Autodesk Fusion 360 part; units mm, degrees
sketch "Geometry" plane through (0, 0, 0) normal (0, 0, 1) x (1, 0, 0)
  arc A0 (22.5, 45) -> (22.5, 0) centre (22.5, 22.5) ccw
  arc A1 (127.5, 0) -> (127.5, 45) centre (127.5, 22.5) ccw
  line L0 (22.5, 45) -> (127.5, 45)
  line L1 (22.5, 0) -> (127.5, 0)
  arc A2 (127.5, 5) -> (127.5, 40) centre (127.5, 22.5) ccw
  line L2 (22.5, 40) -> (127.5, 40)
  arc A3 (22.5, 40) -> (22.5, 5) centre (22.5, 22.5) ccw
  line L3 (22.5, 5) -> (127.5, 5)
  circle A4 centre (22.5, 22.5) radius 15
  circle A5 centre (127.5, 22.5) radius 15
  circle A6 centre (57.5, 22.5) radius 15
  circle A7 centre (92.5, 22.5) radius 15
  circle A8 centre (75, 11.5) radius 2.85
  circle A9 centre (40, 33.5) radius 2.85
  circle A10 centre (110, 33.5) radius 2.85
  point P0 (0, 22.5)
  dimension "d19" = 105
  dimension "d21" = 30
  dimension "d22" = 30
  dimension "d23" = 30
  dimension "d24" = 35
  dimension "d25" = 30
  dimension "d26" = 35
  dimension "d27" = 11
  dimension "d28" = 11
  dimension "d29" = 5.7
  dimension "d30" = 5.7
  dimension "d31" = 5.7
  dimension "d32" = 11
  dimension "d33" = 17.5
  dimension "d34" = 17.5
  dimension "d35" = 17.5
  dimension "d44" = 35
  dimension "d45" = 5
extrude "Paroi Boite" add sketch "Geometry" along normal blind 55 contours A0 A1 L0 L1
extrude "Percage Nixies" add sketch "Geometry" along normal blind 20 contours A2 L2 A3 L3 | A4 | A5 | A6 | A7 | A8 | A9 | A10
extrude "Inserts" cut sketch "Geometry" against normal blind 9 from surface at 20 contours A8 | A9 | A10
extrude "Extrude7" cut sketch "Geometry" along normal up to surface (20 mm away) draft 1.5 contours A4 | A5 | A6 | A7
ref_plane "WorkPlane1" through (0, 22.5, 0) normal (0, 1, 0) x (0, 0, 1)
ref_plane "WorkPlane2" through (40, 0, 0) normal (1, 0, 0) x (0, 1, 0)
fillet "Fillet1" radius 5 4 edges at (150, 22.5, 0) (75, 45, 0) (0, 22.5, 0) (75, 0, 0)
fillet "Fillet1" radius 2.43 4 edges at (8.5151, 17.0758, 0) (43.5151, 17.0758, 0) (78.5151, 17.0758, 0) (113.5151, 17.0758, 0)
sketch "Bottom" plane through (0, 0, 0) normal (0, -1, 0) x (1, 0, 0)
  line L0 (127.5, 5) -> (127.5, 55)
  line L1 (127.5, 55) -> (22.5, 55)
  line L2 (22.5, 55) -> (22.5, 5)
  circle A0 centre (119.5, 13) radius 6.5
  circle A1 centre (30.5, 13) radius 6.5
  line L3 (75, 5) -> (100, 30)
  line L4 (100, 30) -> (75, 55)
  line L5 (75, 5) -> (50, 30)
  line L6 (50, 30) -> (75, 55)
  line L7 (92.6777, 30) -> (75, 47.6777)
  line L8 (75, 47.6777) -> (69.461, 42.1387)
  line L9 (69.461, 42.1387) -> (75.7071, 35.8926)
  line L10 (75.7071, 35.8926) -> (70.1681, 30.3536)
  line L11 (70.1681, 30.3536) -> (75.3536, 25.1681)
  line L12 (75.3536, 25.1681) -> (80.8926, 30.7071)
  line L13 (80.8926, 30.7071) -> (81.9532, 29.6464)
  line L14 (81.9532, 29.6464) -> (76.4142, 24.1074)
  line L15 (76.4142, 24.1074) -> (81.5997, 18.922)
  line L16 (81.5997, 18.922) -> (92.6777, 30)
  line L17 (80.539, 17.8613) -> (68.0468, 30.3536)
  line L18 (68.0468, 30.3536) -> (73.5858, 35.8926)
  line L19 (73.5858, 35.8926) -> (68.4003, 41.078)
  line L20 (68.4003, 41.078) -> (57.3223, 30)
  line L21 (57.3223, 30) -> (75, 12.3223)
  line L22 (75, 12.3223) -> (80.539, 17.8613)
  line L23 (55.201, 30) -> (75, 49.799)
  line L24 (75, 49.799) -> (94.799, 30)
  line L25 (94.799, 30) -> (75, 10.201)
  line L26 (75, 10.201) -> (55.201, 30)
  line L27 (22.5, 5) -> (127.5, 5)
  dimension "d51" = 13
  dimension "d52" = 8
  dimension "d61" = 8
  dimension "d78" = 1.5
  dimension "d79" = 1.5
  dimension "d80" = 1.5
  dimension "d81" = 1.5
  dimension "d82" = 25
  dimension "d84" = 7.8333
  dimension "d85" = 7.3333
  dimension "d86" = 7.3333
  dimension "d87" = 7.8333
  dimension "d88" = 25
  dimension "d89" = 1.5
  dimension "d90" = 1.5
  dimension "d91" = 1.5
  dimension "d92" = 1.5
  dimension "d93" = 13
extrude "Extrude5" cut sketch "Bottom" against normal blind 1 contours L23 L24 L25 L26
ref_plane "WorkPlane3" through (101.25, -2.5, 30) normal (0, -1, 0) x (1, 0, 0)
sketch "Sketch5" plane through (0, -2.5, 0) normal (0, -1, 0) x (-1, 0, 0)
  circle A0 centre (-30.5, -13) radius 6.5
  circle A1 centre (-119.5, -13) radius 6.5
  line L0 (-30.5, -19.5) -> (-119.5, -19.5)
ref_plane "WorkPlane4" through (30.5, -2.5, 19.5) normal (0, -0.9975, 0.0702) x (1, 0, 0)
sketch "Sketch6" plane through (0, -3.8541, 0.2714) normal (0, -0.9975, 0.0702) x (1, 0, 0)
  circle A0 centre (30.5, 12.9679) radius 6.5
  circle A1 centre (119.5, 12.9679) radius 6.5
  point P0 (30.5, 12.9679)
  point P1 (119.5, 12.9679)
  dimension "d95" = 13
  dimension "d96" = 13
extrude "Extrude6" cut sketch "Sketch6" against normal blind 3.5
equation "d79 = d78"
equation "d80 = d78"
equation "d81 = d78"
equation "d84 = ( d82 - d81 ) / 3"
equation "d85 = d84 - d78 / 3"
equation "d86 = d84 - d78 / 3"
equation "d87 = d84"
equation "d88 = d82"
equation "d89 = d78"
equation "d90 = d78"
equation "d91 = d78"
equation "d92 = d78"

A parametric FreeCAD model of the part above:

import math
import FreeCAD as App
import Part
import Sketcher
Q = App.Units.Quantity


def edges_at(feature, points):
    """Names of the edges that pass closest to the given points."""
    edges = feature.Shape.Edges
    near = lambda p: min(range(len(edges)), key=lambda i: edges[i].distToShape(Part.Vertex(*p))[0])
    return sorted({f"Edge{near(p) + 1}" for p in points})


def add_polygon(sketch, points):
    """Adds a closed chain of lines whose ends are joined by coincident constraints."""
    first, n = sketch.GeometryCount, len(points)
    for a, b in zip(points, points[1:] + points[:1]):
        sketch.addGeometry(Part.LineSegment(App.Vector(*a, 0), App.Vector(*b, 0)), False)
    for i in range(n):
        sketch.addConstraint(Sketcher.Constraint("Coincident", first + i, 2, first + (i + 1) % n, 1))

doc = App.newDocument("Part")
params = doc.addObject("Spreadsheet::Sheet", "Params")
for row, (alias, value) in enumerate([
    ("sketch1_radius", "17.5 mm"),
    ("sketch1_width", "105 mm"),
    ("pad1_length", "55 mm"),
    ("sketch2_radius", "17.5 mm"),
    ("sketch2_width", "105 mm"),
    ("pad2_length", "20 mm"),
    ("sketch3_diameter", "5.7 mm"),
    ("pocket1_length", "9 mm"),
    ("sketch4_diameter", "30 mm"),
    ("pocket2_length", "20 mm"),
    ("pocket2_taper", "1.5 deg"),
    ("fillet_radius", "5 mm"),
    ("fillet2_radius", "2.43 mm"),
    ("sketch5_length", "25 mm"),
    ("sketch5_length2", "1.5 mm"),
    ("sketch5_length3", "28 mm"),
    ("pocket3_length", "1 mm"),
    ("sketch6_diameter", "13 mm"),
    ("pocket4_length", "3.5 mm"),
], start=1):
    params.set(f"A{row}", alias)
    params.set(f"B{row}", "=" + value)
    params.setAlias(f"B{row}", alias)

body = doc.addObject("PartDesign::Body", "Body")

# Sketch on XY plane
sketch1 = doc.addObject("Sketcher::SketchObject", "Sketch")
body.addObject(sketch1)
sketch1.AttachmentSupport = (doc.XY_Plane, [""])
sketch1.MapMode = "FlatFace"
sketch1.addGeometry([
    Part.LineSegment(App.Vector(128, 45, 0), App.Vector(22, 45, 0)),  # 0
    Part.ArcOfCircle(Part.Circle(App.Vector(22, 22, 0), App.Vector(0, 0, 1), 22), math.radians(90), math.radians(270)),  # 1
    Part.LineSegment(App.Vector(22, 0, 0), App.Vector(128, 0, 0)),  # 2
    Part.ArcOfCircle(Part.Circle(App.Vector(128, 22, 0), App.Vector(0, 0, 1), 22), math.radians(-90), math.radians(90)),  # 3
    Part.ArcOfCircle(Part.Circle(App.Vector(128, 22, 0), App.Vector(0, 0, 1), 18), math.radians(-90), math.radians(90)),  # 4
    Part.LineSegment(App.Vector(128, 5, 0), App.Vector(22, 5, 0)),  # 5
    Part.ArcOfCircle(Part.Circle(App.Vector(22, 22, 0), App.Vector(0, 0, 1), 18), math.radians(90), math.radians(270)),  # 6
    Part.LineSegment(App.Vector(22, 40, 0), App.Vector(128, 40, 0)),  # 7
], False)
sketch1.addConstraint([
    Sketcher.Constraint("Tangent", 0, 2, 1, 1),
    Sketcher.Constraint("Tangent", 1, 2, 2, 1),
    Sketcher.Constraint("Tangent", 2, 2, 3, 1),
    Sketcher.Constraint("Tangent", 3, 2, 0, 1),
    Sketcher.Constraint("Tangent", 4, 1, 5, 1),
    Sketcher.Constraint("Tangent", 5, 2, 6, 2),
    Sketcher.Constraint("Tangent", 6, 1, 7, 1),
    Sketcher.Constraint("Tangent", 7, 2, 4, 2),
    Sketcher.Constraint("Horizontal", 0),
    Sketcher.Constraint("Horizontal", 2),
    Sketcher.Constraint("Horizontal", 5),
    Sketcher.Constraint("Horizontal", 7),
    Sketcher.Constraint("Coincident", 4, 3, 3, 3),
    Sketcher.Constraint("PointOnObject", 1, 2, -1),
    Sketcher.Constraint("Vertical", 6, 3, 0, 2),
    Sketcher.Constraint("Radius", 4, Q("17.5 mm")),
    Sketcher.Constraint("DistanceX", 0, 2, 0, 1, Q("105 mm")),
    Sketcher.Constraint("DistanceY", -1, 1, 4, 1, Q("5 mm")),
    Sketcher.Constraint("DistanceX", -1, 1, 1, 3, Q("22.5 mm")),
])
sketch1.setExpression("Constraints[15]", "Params.sketch1_radius")
sketch1.setExpression("Constraints[16]", "Params.sketch1_width")
pad1 = doc.addObject("PartDesign::Pad", "Pad")
body.addObject(pad1)
pad1.Profile = sketch1
pad1.setExpression("Length", "Params.pad1_length")

# Sketch on XY plane
sketch2 = doc.addObject("Sketcher::SketchObject", "Sketch001")
body.addObject(sketch2)
sketch2.AttachmentSupport = (doc.XY_Plane, [""])
sketch2.MapMode = "FlatFace"
sketch2.addGeometry([
    Part.LineSegment(App.Vector(22, 5, 0), App.Vector(128, 5, 0)),
    Part.ArcOfCircle(Part.Circle(App.Vector(128, 22, 0), App.Vector(0, 0, 1), 18), math.radians(-90), math.radians(90)),
    Part.LineSegment(App.Vector(128, 40, 0), App.Vector(22, 40, 0)),
    Part.ArcOfCircle(Part.Circle(App.Vector(22, 22, 0), App.Vector(0, 0, 1), 18), math.radians(90), math.radians(270)),
], False)
sketch2.addConstraint([
    Sketcher.Constraint("Tangent", 0, 2, 1, 1),
    Sketcher.Constraint("Tangent", 1, 2, 2, 1),
    Sketcher.Constraint("Tangent", 2, 2, 3, 1),
    Sketcher.Constraint("Tangent", 3, 2, 0, 1),
    Sketcher.Constraint("Horizontal", 0),
    Sketcher.Constraint("Horizontal", 2),
    Sketcher.Constraint("Radius", 1, Q("17.5 mm")),
    Sketcher.Constraint("DistanceX", 0, 1, 0, 2, Q("105 mm")),
    Sketcher.Constraint("DistanceY", -1, 1, 0, 2, Q("5 mm")),
    Sketcher.Constraint("DistanceX", -1, 1, 1, 3, Q("127.5 mm")),
])
sketch2.setExpression("Constraints[6]", "Params.sketch2_radius")
sketch2.setExpression("Constraints[7]", "Params.sketch2_width")
pad2 = doc.addObject("PartDesign::Pad", "Pad001")
body.addObject(pad2)
pad2.Profile = sketch2
pad2.setExpression("Length", "Params.pad2_length")

# Sketch on XY plane
sketch3 = doc.addObject("Sketcher::SketchObject", "Sketch002")
body.addObject(sketch3)
sketch3.AttachmentSupport = (doc.XY_Plane, [""])
sketch3.MapMode = "FlatFace"
sketch3.AttachmentOffset = App.Placement(App.Vector(0, 0, 20), App.Rotation())
sketch3.addGeometry([
    Part.Circle(App.Vector(75, 11.5, 0), App.Vector(0, 0, 1), 2.9),
    Part.Circle(App.Vector(40, 33.5, 0), App.Vector(0, 0, 1), 2.9),
    Part.Circle(App.Vector(110, 33.5, 0), App.Vector(0, 0, 1), 2.9),
], False)
sketch3.addConstraint([
    Sketcher.Constraint("Equal", 0, 1),
    Sketcher.Constraint("Equal", 1, 2),
    Sketcher.Constraint("Horizontal", 1, 3, 2, 3),
    Sketcher.Constraint("Diameter", 0, Q("5.7 mm")),
    Sketcher.Constraint("DistanceX", 1, 3, 0, 3, Q("35 mm")),
    Sketcher.Constraint("DistanceX", 0, 3, 2, 3, Q("35 mm")),
    Sketcher.Constraint("DistanceX", -1, 1, 0, 3, Q("75 mm")),
    Sketcher.Constraint("DistanceY", 0, 3, 1, 3, Q("22 mm")),
    Sketcher.Constraint("DistanceY", -1, 1, 0, 3, Q("11.5 mm")),
])
sketch3.setExpression("Constraints[3]", "Params.sketch3_diameter")
pocket1 = doc.addObject("PartDesign::Pocket", "Pocket")
body.addObject(pocket1)
pocket1.Profile = sketch3
pocket1.setExpression("Length", "Params.pocket1_length")

# Sketch on XY plane
sketch4 = doc.addObject("Sketcher::SketchObject", "Sketch003")
body.addObject(sketch4)
sketch4.AttachmentSupport = (doc.XY_Plane, [""])
sketch4.MapMode = "FlatFace"
sketch4.addGeometry([
    Part.Circle(App.Vector(22, 22, 0), App.Vector(0, 0, 1), 15),
    Part.Circle(App.Vector(128, 22, 0), App.Vector(0, 0, 1), 15),
    Part.Circle(App.Vector(58, 22, 0), App.Vector(0, 0, 1), 15),
    Part.Circle(App.Vector(92, 22, 0), App.Vector(0, 0, 1), 15),
], False)
sketch4.addConstraint([
    Sketcher.Constraint("Equal", 0, 1),
    Sketcher.Constraint("Equal", 1, 2),
    Sketcher.Constraint("Equal", 2, 3),
    Sketcher.Constraint("Horizontal", 0, 3, 1, 3),
    Sketcher.Constraint("Horizontal", 1, 3, 2, 3),
    Sketcher.Constraint("Horizontal", 2, 3, 3, 3),
    Sketcher.Constraint("Diameter", 0, Q("30 mm")),
    Sketcher.Constraint("DistanceX", 0, 3, 1, 3, Q("105 mm")),
    Sketcher.Constraint("DistanceX", 0, 3, 2, 3, Q("35 mm")),
    Sketcher.Constraint("DistanceX", 3, 3, 1, 3, Q("35 mm")),
    Sketcher.Constraint("DistanceX", -1, 1, 0, 3, Q("22.5 mm")),
    Sketcher.Constraint("DistanceY", -1, 1, 0, 3, Q("22.5 mm")),
])
sketch4.setExpression("Constraints[6]", "Params.sketch4_diameter")
pocket2 = doc.addObject("PartDesign::Pocket", "Pocket001")
body.addObject(pocket2)
pocket2.Profile = sketch4
pocket2.setExpression("Length", "Params.pocket2_length")
pocket2.Reversed = True
pocket2.setExpression("TaperAngle", "Params.pocket2_taper")
doc.recompute()

fillet = doc.addObject("PartDesign::Fillet", "Fillet")
body.addObject(fillet)
fillet.Base = (pocket2, edges_at(pocket2, [
    (150, 22.5, 0),
    (75, 45, 0),
    (0, 22.5, 0),
    (75, 0, 0),
]))
fillet.setExpression("Radius", "Params.fillet_radius")
doc.recompute()

fillet2 = doc.addObject("PartDesign::Fillet", "Fillet001")
body.addObject(fillet2)
fillet2.Base = (fillet, edges_at(fillet, [
    (8.515, 17.076, 0),
    (43.515, 17.076, 0),
    (78.515, 17.076, 0),
    (113.515, 17.076, 0),
]))
fillet2.setExpression("Radius", "Params.fillet2_radius")

# Sketch on XZ plane
sketch5 = doc.addObject("Sketcher::SketchObject", "Sketch004")
body.addObject(sketch5)
sketch5.AttachmentSupport = (doc.XZ_Plane, [""])
sketch5.MapMode = "FlatFace"
add_polygon(sketch5, [(75, 49.8), (55.2, 30), (75, 10.2), (94.8, 30)])  # lines 0-3
add_polygon(sketch5, [(68, 30.4), (80.5, 17.9), (75, 12.3), (57.3, 30), (68.4, 41.1), (73.6, 35.9)])  # lines 4-9
add_polygon(sketch5, [(75, 47.7), (92.7, 30), (81.6, 18.9), (76.4, 24.1), (82, 29.6), (80.9, 30.7), (75.4, 25.2), (70.2, 30.4), (75.7, 35.9), (69.5, 42.1)])  # lines 10-19
sketch5.addConstraint([
    Sketcher.Constraint("Perpendicular", 0, 1),
    Sketcher.Constraint("Perpendicular", 1, 2),
    Sketcher.Constraint("Perpendicular", 2, 3),
    Sketcher.Constraint("Parallel", 3, 4),
    Sketcher.Constraint("Perpendicular", 4, 5),
    Sketcher.Constraint("Perpendicular", 5, 6),
    Sketcher.Constraint("Perpendicular", 6, 7),
    Sketcher.Constraint("Perpendicular", 7, 8),
    Sketcher.Constraint("Perpendicular", 8, 9),
    Sketcher.Constraint("Perpendicular", 9, 10),
    Sketcher.Constraint("Perpendicular", 10, 11),
    Sketcher.Constraint("Perpendicular", 11, 12),
    Sketcher.Constraint("Perpendicular", 12, 13),
    Sketcher.Constraint("Perpendicular", 13, 14),
    Sketcher.Constraint("Perpendicular", 14, 15),
    Sketcher.Constraint("Perpendicular", 15, 16),
    Sketcher.Constraint("Perpendicular", 16, 17),
    Sketcher.Constraint("Perpendicular", 17, 18),
    Sketcher.Constraint("Perpendicular", 18, 19),
    Sketcher.Constraint("Horizontal", 0, 2, 2, 2),
    Sketcher.Constraint("Horizontal", 2, 2, 6, 2),
    Sketcher.Constraint("Horizontal", 6, 2, 10, 2),
    Sketcher.Constraint("Horizontal", 9, 2, 16, 2),
    Sketcher.Constraint("Horizontal", 8, 2, 17, 2),
    Sketcher.Constraint("Vertical", 1, 2, 3, 2),
    Sketcher.Constraint("Vertical", 3, 2, 5, 2),
    Sketcher.Constraint("Vertical", 5, 2, 19, 2),
    Sketcher.Constraint("Equal", 5, 9),
    Sketcher.Constraint("Equal", 6, 10),
    Sketcher.Constraint("Equal", 7, 11),
    Sketcher.Constraint("Equal", 8, 12),
    Sketcher.Constraint("Equal", 9, 13),
    Sketcher.Constraint("Equal", 13, 15),
    Sketcher.Constraint("Equal", 12, 16),
    Sketcher.Constraint("Distance", 6, Q("25 mm")),
    Sketcher.Constraint("Distance", 14, Q("1.5 mm")),
    Sketcher.Constraint("Distance", 0, Q("28 mm")),
    Sketcher.Constraint("DistanceY", -1, 1, 0, 2, Q("30 mm")),
    Sketcher.Constraint("DistanceX", -1, 1, 1, 2, Q("75 mm")),
    Sketcher.Constraint("Distance", 5, Q("7.8333 mm")),
])
sketch5.setExpression("Constraints[54]", "Params.sketch5_length")
sketch5.setExpression("Constraints[55]", "Params.sketch5_length2")
sketch5.setExpression("Constraints[56]", "Params.sketch5_length3")
pocket3 = doc.addObject("PartDesign::Pocket", "Pocket002")
body.addObject(pocket3)
pocket3.Profile = sketch5
pocket3.setExpression("Length", "Params.pocket3_length")

# Sketch on an angled plane
sketch6 = doc.addObject("Sketcher::SketchObject", "Sketch005")
body.addObject(sketch6)
sketch6.Placement = App.Placement(App.Vector(0, -3.8541, 0.2714), App.Rotation(App.Vector(1, 0, 0), App.Vector(0, 0.070202307, 0.997532774), App.Vector(0, -0.997532774, 0.070202307), "ZXY"))
sketch6.addGeometry([
    Part.Circle(App.Vector(30, 13, 0), App.Vector(0, 0, 1), 6),
    Part.Circle(App.Vector(120, 13, 0), App.Vector(0, 0, 1), 6),
], False)
sketch6.addConstraint([
    Sketcher.Constraint("Equal", 0, 1),
    Sketcher.Constraint("Horizontal", 0, 3, 1, 3),
    Sketcher.Constraint("Diameter", 0, Q("13 mm")),
    Sketcher.Constraint("DistanceX", 0, 3, 1, 3, Q("89 mm")),
    Sketcher.Constraint("DistanceX", -1, 1, 0, 3, Q("30.5 mm")),
    Sketcher.Constraint("DistanceY", -1, 1, 0, 3, Q("12.968 mm")),
])
sketch6.setExpression("Constraints[2]", "Params.sketch6_diameter")
pocket4 = doc.addObject("PartDesign::Pocket", "Pocket003")
body.addObject(pocket4)
pocket4.Profile = sketch6
pocket4.setExpression("Length", "Params.pocket4_length")

doc.recompute()
